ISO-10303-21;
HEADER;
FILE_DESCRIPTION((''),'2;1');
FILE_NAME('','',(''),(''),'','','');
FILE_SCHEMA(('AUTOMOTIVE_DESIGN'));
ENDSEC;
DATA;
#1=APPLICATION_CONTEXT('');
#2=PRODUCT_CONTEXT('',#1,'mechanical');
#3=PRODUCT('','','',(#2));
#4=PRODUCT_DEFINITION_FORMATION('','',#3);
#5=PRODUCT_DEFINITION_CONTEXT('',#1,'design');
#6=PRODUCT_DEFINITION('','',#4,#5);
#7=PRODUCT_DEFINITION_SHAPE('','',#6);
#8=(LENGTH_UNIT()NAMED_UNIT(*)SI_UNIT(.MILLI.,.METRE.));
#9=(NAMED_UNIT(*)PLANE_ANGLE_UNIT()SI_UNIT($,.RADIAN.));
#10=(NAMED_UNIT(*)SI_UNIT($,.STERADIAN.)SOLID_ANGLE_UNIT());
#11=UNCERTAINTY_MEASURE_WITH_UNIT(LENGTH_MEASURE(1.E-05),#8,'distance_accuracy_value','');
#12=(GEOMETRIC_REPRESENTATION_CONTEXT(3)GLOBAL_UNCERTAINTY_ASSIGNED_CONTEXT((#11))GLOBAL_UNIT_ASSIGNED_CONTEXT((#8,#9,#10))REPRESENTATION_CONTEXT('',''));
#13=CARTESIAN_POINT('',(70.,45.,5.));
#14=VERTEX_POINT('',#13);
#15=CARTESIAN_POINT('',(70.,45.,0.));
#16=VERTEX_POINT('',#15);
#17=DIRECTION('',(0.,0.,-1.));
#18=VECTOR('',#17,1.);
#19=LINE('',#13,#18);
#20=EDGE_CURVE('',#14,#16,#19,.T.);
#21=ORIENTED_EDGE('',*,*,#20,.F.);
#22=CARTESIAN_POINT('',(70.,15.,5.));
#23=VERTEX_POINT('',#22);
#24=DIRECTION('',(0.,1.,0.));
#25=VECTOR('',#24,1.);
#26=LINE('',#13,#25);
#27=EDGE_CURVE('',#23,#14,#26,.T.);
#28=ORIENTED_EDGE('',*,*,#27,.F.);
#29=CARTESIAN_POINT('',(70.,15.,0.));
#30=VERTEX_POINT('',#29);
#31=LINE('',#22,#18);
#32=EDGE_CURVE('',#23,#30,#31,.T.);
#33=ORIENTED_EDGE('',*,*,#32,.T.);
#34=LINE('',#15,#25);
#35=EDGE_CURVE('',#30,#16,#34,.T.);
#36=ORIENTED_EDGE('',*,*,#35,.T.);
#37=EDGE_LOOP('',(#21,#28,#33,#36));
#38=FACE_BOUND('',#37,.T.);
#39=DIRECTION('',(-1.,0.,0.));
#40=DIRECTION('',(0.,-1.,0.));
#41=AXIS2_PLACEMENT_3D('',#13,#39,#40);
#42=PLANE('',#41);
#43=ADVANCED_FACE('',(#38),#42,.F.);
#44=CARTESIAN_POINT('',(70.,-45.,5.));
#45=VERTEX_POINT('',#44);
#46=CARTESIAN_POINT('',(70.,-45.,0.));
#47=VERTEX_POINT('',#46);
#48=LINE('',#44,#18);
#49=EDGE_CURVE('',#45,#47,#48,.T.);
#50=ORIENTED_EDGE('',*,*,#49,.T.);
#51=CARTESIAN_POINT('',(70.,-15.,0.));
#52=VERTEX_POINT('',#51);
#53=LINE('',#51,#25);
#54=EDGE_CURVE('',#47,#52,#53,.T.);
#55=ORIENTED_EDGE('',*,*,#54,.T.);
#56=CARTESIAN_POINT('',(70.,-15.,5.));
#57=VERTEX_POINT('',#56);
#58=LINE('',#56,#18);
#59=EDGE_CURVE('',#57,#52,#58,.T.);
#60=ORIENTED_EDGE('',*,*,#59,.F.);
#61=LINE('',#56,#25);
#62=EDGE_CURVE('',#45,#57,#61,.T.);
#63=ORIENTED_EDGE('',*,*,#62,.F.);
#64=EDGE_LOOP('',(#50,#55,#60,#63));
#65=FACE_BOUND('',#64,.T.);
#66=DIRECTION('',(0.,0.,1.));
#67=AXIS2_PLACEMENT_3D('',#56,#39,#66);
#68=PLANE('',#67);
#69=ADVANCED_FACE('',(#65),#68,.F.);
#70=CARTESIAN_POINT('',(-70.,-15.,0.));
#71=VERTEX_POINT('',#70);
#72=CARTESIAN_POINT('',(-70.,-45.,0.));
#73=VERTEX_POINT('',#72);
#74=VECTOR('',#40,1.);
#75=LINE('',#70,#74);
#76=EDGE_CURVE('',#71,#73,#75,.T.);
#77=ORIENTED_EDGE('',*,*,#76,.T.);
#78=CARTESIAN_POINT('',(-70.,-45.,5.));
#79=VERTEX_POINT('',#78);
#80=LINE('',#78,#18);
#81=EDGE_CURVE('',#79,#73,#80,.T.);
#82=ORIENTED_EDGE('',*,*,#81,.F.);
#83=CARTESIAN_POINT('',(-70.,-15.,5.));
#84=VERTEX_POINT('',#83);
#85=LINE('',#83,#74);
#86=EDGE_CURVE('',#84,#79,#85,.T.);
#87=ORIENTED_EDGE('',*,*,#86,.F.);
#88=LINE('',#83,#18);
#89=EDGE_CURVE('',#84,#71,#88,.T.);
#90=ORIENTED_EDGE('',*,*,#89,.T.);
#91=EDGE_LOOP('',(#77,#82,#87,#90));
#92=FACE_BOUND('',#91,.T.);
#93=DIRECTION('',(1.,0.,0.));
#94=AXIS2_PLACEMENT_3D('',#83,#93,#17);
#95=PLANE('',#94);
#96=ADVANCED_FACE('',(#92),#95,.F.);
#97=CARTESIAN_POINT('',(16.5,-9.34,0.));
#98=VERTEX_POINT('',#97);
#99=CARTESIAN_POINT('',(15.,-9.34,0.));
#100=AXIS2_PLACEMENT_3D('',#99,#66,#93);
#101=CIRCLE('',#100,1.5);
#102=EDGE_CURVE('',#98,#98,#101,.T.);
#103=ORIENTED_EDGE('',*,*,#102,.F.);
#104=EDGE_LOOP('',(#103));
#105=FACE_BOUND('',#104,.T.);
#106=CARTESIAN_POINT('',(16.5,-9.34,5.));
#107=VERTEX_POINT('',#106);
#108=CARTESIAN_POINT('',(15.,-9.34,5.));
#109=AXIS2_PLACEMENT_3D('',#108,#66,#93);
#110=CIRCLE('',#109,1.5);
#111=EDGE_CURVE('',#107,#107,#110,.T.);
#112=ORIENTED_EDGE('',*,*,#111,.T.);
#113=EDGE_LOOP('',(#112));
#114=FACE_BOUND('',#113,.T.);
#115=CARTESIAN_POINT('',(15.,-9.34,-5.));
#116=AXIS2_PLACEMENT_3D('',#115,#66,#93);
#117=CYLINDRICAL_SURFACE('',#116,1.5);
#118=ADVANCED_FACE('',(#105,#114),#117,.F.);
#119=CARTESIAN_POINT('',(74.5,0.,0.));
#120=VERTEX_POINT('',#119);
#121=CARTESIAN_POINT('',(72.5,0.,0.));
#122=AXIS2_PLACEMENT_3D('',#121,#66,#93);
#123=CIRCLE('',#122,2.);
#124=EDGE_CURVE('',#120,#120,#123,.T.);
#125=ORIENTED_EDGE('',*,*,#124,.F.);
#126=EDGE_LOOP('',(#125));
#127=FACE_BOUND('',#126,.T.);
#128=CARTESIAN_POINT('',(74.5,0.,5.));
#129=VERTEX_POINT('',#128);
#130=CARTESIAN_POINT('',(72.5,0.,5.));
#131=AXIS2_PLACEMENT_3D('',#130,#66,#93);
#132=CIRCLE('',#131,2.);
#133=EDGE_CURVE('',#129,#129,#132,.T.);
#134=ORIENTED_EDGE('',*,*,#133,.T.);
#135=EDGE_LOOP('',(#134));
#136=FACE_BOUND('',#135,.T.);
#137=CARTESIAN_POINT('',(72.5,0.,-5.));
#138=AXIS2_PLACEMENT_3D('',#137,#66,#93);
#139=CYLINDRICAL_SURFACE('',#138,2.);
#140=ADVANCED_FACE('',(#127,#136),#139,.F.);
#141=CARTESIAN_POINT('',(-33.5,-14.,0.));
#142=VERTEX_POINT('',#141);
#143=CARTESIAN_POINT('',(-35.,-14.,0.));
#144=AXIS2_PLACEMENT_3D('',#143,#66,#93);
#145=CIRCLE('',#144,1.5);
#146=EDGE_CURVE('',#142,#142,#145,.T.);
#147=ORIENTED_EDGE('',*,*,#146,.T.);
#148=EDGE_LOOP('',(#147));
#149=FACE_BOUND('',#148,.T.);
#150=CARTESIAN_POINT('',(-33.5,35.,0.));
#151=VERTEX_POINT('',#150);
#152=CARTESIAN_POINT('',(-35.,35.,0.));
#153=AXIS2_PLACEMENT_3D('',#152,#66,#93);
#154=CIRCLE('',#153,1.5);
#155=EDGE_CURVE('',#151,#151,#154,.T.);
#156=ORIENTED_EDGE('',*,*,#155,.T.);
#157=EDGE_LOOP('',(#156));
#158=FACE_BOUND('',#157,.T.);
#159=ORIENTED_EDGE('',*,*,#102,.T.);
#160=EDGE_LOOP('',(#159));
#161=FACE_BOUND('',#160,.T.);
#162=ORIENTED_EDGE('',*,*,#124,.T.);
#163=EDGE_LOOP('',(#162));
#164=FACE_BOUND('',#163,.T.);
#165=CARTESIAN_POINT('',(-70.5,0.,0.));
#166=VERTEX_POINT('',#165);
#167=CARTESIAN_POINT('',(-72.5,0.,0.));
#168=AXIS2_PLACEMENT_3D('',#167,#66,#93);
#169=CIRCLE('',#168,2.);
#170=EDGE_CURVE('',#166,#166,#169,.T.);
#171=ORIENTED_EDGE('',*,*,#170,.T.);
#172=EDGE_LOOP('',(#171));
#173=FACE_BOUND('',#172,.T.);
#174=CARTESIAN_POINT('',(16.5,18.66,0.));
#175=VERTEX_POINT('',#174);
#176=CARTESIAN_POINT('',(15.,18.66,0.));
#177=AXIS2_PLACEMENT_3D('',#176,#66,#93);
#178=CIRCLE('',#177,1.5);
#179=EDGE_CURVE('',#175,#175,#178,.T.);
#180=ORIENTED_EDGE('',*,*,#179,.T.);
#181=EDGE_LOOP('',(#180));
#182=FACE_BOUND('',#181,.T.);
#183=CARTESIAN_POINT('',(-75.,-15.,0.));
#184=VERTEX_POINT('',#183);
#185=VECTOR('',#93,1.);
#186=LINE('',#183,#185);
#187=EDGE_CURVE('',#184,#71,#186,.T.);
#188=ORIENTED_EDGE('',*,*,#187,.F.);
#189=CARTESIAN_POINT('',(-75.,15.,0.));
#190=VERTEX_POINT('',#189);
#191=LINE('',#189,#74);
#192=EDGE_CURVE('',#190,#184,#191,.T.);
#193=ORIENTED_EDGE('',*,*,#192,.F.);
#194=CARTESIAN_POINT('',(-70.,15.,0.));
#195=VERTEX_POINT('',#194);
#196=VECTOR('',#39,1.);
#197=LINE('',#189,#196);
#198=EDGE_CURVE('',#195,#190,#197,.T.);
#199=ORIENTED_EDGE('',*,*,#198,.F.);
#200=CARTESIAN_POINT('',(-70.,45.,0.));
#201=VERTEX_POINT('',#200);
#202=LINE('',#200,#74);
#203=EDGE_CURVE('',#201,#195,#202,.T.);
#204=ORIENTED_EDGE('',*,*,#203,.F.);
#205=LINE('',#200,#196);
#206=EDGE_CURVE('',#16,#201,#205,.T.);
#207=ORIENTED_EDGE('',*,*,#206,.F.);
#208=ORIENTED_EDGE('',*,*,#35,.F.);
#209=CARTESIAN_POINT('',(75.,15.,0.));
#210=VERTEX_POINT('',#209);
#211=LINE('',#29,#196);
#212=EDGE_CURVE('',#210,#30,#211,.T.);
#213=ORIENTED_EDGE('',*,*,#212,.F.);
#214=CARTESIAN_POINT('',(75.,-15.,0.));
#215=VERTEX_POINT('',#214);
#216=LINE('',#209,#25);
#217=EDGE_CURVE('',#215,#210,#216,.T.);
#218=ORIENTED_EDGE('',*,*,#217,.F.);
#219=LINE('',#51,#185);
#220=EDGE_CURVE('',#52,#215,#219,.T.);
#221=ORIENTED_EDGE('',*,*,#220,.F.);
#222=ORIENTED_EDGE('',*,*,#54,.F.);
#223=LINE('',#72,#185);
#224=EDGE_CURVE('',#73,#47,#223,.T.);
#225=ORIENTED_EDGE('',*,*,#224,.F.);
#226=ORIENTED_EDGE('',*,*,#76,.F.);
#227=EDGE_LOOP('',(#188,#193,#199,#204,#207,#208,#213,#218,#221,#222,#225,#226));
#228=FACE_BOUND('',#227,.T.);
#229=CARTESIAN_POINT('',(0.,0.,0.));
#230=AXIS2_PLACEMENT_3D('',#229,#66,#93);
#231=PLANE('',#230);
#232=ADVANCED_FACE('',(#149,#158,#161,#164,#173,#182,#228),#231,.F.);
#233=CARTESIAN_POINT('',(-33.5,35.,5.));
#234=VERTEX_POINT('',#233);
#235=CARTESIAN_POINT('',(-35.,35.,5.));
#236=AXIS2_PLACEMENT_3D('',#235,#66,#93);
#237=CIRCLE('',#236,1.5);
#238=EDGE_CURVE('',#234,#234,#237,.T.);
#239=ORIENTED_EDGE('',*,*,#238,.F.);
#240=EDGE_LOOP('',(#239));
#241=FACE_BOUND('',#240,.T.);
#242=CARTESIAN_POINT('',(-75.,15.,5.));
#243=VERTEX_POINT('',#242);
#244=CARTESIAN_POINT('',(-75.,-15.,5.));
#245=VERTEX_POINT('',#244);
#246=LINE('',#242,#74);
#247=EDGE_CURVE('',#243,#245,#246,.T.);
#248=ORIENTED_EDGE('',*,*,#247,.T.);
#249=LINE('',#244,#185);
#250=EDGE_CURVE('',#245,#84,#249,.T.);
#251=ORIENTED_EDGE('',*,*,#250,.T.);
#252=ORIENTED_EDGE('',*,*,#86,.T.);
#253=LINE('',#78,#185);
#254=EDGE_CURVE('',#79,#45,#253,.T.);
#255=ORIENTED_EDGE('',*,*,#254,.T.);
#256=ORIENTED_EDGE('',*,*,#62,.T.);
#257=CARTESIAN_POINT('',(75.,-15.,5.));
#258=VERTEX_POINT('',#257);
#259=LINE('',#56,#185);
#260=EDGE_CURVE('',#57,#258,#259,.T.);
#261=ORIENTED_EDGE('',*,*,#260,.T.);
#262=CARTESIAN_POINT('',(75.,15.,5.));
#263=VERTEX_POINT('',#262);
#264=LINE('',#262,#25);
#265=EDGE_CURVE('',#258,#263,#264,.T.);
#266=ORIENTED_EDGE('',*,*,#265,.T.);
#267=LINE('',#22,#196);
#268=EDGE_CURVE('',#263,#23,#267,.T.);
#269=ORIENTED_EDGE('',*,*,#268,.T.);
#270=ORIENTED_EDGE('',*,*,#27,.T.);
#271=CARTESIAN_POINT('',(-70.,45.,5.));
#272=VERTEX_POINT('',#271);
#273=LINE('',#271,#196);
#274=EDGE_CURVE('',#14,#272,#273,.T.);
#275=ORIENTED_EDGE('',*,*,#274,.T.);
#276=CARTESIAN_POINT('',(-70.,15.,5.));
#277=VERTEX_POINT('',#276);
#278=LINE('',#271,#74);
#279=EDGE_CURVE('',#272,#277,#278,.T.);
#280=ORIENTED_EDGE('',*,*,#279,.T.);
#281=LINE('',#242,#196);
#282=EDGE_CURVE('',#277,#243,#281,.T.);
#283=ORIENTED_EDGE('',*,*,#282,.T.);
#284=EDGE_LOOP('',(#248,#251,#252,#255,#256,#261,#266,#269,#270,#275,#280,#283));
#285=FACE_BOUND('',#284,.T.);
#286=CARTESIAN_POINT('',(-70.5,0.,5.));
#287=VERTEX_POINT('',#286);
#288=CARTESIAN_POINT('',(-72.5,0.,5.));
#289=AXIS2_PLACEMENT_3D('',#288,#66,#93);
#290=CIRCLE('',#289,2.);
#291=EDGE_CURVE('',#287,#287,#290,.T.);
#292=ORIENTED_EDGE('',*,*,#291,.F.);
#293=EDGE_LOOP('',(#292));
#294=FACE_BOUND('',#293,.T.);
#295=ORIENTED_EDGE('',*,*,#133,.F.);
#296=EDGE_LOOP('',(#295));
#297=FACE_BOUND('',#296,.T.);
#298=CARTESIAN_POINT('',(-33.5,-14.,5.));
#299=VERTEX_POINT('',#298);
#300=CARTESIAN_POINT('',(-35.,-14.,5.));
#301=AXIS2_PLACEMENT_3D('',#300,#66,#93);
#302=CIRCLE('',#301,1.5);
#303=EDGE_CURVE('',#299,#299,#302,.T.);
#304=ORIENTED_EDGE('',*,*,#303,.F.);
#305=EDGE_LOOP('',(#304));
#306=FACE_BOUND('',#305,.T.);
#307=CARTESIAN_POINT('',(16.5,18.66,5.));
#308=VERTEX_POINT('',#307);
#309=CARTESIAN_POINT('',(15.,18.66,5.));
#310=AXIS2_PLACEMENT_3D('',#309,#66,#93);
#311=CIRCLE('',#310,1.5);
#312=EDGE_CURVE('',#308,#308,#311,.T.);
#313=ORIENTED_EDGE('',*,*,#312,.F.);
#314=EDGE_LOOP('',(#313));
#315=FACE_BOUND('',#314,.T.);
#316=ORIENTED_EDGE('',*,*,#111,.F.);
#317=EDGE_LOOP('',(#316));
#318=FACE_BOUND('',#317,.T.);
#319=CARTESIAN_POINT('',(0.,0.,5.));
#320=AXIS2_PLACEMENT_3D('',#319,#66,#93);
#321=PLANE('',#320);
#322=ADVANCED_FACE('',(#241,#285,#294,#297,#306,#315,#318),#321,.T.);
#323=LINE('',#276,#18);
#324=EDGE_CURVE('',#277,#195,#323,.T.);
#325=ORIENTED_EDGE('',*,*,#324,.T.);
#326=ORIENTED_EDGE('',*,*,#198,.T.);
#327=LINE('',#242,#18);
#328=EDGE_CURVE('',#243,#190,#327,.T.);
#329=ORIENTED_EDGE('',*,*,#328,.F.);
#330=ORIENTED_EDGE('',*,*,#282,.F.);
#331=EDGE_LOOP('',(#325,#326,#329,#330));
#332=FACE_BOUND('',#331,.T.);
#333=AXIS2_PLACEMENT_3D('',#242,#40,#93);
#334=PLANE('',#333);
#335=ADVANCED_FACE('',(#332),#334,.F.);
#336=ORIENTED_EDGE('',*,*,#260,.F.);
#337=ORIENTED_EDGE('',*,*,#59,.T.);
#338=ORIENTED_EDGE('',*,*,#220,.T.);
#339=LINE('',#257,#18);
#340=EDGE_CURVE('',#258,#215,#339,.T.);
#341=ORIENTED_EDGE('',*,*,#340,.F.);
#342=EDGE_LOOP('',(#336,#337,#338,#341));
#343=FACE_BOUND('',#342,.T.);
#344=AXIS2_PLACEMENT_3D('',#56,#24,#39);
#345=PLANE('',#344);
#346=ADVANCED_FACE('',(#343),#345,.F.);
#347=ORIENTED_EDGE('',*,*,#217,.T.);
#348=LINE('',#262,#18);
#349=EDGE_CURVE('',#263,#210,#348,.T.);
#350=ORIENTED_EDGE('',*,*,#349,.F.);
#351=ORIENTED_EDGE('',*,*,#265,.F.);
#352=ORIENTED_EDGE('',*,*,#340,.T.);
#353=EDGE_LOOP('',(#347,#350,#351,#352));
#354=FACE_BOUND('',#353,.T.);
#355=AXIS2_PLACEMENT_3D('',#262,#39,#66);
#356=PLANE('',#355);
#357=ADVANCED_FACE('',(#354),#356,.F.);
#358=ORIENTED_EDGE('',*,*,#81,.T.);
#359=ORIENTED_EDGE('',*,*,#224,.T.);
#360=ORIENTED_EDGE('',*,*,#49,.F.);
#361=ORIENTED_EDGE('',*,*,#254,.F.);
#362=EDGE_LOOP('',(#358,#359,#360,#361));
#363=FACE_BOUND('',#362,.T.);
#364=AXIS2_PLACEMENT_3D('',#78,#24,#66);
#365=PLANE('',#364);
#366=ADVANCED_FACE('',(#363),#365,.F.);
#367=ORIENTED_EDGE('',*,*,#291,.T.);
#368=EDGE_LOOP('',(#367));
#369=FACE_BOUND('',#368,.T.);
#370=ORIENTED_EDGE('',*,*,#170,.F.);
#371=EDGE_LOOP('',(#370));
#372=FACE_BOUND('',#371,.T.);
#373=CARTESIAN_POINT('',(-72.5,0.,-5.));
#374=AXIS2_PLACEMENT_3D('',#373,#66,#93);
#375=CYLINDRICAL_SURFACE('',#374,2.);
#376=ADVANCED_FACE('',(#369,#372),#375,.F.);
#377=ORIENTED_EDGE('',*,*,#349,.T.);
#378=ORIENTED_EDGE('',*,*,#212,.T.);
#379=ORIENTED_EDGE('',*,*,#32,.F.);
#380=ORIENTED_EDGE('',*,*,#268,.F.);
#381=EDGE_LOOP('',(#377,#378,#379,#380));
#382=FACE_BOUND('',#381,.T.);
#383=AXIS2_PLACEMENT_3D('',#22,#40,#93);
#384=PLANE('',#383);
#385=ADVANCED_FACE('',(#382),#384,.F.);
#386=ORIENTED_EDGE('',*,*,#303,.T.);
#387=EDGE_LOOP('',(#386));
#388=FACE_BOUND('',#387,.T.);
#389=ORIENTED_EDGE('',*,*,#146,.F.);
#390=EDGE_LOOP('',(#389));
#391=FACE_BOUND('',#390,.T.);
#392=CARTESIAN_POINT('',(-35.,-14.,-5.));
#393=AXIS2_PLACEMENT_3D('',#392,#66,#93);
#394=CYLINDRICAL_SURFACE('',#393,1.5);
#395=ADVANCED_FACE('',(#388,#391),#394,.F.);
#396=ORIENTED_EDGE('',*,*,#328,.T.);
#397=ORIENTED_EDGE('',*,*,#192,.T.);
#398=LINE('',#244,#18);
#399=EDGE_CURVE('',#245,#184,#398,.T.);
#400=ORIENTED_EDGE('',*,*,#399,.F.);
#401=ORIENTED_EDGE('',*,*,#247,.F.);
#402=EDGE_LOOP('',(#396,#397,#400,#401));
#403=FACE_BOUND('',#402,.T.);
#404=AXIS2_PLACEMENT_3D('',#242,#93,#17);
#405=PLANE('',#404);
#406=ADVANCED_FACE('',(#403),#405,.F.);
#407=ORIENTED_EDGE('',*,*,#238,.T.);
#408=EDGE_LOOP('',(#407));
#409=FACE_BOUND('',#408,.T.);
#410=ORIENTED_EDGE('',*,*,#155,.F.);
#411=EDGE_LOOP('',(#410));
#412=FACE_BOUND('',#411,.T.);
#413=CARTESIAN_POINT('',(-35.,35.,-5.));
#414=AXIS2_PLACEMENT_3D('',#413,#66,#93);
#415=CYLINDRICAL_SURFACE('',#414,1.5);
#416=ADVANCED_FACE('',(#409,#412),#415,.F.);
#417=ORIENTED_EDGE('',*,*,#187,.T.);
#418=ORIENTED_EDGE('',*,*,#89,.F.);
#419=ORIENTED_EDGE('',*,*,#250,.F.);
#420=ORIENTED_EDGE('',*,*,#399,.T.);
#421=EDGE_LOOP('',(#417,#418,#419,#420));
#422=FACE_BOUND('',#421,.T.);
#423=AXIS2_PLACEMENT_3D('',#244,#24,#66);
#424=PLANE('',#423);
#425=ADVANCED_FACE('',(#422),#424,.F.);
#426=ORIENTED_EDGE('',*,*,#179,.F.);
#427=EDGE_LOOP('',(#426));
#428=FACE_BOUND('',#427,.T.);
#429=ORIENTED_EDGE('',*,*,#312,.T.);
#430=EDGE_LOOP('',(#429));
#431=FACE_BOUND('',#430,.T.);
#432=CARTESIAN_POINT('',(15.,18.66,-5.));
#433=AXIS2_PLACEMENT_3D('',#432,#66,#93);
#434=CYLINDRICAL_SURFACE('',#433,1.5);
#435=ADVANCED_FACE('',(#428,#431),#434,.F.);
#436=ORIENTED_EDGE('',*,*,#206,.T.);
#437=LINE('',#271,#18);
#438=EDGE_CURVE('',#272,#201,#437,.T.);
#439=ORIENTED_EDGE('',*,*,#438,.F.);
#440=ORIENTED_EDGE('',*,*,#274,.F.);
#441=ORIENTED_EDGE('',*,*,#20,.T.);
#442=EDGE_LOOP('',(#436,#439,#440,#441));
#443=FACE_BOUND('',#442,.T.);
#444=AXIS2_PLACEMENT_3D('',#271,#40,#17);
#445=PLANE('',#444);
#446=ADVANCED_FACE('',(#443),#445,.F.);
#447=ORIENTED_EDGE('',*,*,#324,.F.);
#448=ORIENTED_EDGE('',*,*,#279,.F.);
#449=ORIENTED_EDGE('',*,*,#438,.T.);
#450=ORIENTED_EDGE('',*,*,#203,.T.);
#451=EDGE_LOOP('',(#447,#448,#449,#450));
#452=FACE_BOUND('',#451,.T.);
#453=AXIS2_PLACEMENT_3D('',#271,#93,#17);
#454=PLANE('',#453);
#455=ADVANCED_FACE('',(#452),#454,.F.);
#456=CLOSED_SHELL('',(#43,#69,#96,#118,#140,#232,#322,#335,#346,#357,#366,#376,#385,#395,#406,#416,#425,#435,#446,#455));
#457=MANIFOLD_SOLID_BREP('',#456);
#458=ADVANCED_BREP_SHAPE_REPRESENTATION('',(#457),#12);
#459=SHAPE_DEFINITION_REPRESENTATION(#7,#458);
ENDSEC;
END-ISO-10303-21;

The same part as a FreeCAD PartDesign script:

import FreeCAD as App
import Part
import Sketcher

V = App.Vector
Q = App.Units.Quantity


def add_polygon(sketch, points):
    """Adds a closed chain of lines whose ends are joined by coincident constraints."""
    first, n = sketch.GeometryCount, len(points)
    for a, b in zip(points, points[1:] + points[:1]):
        sketch.addGeometry(Part.LineSegment(App.Vector(*a, 0), App.Vector(*b, 0)), False)
    for i in range(n):
        sketch.addConstraint(Sketcher.Constraint("Coincident", first + i, 2, first + (i + 1) % n, 1))

doc = App.newDocument("Part")
body = doc.addObject("PartDesign::Body", "Body")

sketch1 = body.newObject("Sketcher::SketchObject", "Sketch")
sketch1.AttachmentSupport = (doc.getObject("XY_Plane"), [""])
sketch1.MapMode = "FlatFace"
add_polygon(sketch1, [(-75, -15), (-70, -15), (-70, -45), (70, -45), (70, -15), (75, -15), (75, 15), (70, 15), (70, 45), (-70, 45), (-70, 15), (-75, 15)])
sketch1.addConstraint(Sketcher.Constraint("Horizontal", 0))
sketch1.addConstraint(Sketcher.Constraint("Vertical", 1))
sketch1.addConstraint(Sketcher.Constraint("Horizontal", 2))
sketch1.addConstraint(Sketcher.Constraint("Vertical", 3))
sketch1.addConstraint(Sketcher.Constraint("Horizontal", 4))
sketch1.addConstraint(Sketcher.Constraint("Vertical", 5))
sketch1.addConstraint(Sketcher.Constraint("Horizontal", 6))
sketch1.addConstraint(Sketcher.Constraint("Vertical", 7))
sketch1.addConstraint(Sketcher.Constraint("Horizontal", 8))
sketch1.addConstraint(Sketcher.Constraint("Vertical", 9))
sketch1.addConstraint(Sketcher.Constraint("Horizontal", 10))
sketch1.addConstraint(Sketcher.Constraint("Vertical", 11))
sketch1.addConstraint(Sketcher.Constraint("Symmetric", 0, 2, 6, 2, -1, 1))
sketch1.addConstraint(Sketcher.Constraint("Symmetric", 2, 2, 8, 2, -1, 1))
sketch1.addConstraint(Sketcher.Constraint("Symmetric", 4, 2, 10, 2, -1, 1))
sketch1.addConstraint(Sketcher.Constraint("Symmetric", 0, 2, 3, 2, -2))
sketch1.addConstraint(Sketcher.Constraint("Equal", 3, 5))
sketch1.addConstraint(Sketcher.Constraint("DistanceX", 0, 1, 0, 2, Q("5 mm")))
sketch1.addConstraint(Sketcher.Constraint("DistanceX", 2, 1, 2, 2, Q("140 mm")))
sketch1.addConstraint(Sketcher.Constraint("DistanceY", 1, 2, 1, 1, Q("30 mm")))
pad1 = body.newObject("PartDesign::Pad", "Pad")
pad1.Profile = sketch1
pad1.Length = 5

sketch2 = body.newObject("Sketcher::SketchObject", "Sketch001")
sketch2.AttachmentSupport = (doc.getObject("XY_Plane"), [""])
sketch2.MapMode = "FlatFace"
sketch2.AttachmentOffset = App.Placement(V(0, 0, 5), App.Rotation())
sketch2.addGeometry(Part.Circle(V(15, 18.66, 0), V(0, 0, 1), 1.5), False)
sketch2.addGeometry(Part.Circle(V(15, -9.34, 0), V(0, 0, 1), 1.5), False)
sketch2.addGeometry(Part.Circle(V(-35, 35, 0), V(0, 0, 1), 1.5), False)
sketch2.addGeometry(Part.Circle(V(-35, -14, 0), V(0, 0, 1), 1.5), False)
sketch2.addConstraint(Sketcher.Constraint("Equal", 0, 1))
sketch2.addConstraint(Sketcher.Constraint("Equal", 1, 2))
sketch2.addConstraint(Sketcher.Constraint("Equal", 2, 3))
sketch2.addConstraint(Sketcher.Constraint("Vertical", 0, 3, 1, 3))
sketch2.addConstraint(Sketcher.Constraint("Vertical", 2, 3, 3, 3))
sketch2.addConstraint(Sketcher.Constraint("Diameter", 0, Q("3 mm")))
sketch2.addConstraint(Sketcher.Constraint("DistanceX", -1, 1, 0, 3, Q("15 mm")))
sketch2.addConstraint(Sketcher.Constraint("DistanceX", 2, 3, -1, 1, Q("35 mm")))
sketch2.addConstraint(Sketcher.Constraint("DistanceY", -1, 1, 2, 3, Q("35 mm")))
sketch2.addConstraint(Sketcher.Constraint("DistanceY", 3, 3, -1, 1, Q("14 mm")))
sketch2.addConstraint(Sketcher.Constraint("DistanceY", 1, 3, 0, 3, Q("28 mm")))
sketch2.addConstraint(Sketcher.Constraint("DistanceY", -1, 1, 0, 3, Q("18.66 mm")))
pocket1 = body.newObject("PartDesign::Pocket", "Pocket")
pocket1.Profile = sketch2
pocket1.Length = 10

sketch3 = body.newObject("Sketcher::SketchObject", "Sketch002")
sketch3.AttachmentSupport = (doc.getObject("XY_Plane"), [""])
sketch3.MapMode = "FlatFace"
sketch3.AttachmentOffset = App.Placement(V(0, 0, 5), App.Rotation())
sketch3.addGeometry(Part.Circle(V(-72.5, 0, 0), V(0, 0, 1), 2), False)
sketch3.addGeometry(Part.Circle(V(72.5, 0, 0), V(0, 0, 1), 2), False)
sketch3.addConstraint(Sketcher.Constraint("Equal", 0, 1))
sketch3.addConstraint(Sketcher.Constraint("Symmetric", 0, 3, 1, 3, -1, 1))
sketch3.addConstraint(Sketcher.Constraint("PointOnObject", 0, 3, -1))
sketch3.addConstraint(Sketcher.Constraint("Diameter", 0, Q("4 mm")))
sketch3.addConstraint(Sketcher.Constraint("DistanceX", 0, 3, 1, 3, Q("145 mm")))
pocket2 = body.newObject("PartDesign::Pocket", "Pocket001")
pocket2.Profile = sketch3
pocket2.Length = 10

doc.recompute()
